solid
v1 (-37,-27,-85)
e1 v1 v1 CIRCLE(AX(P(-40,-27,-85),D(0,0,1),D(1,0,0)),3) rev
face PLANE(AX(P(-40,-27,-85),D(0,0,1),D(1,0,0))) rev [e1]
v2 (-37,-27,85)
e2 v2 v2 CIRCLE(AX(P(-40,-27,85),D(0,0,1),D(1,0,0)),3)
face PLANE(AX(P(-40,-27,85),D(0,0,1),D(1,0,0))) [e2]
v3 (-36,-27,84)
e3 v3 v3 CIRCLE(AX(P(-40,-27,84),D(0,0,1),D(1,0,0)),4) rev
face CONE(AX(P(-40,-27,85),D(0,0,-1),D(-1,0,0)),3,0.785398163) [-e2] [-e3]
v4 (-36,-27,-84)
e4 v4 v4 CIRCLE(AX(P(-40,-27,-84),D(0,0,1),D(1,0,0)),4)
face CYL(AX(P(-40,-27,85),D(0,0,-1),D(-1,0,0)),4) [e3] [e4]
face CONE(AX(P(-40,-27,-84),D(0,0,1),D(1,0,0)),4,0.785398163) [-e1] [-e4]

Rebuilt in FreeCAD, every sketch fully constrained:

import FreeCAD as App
import Part
import Sketcher
from FreeCAD import Vector


def edges_at(feature, points):
    """Names of the edges that pass closest to the given points."""
    edges = feature.Shape.Edges
    near = lambda p: min(range(len(edges)), key=lambda i: edges[i].distToShape(Part.Vertex(*p))[0])
    return sorted({f"Edge{near(p) + 1}" for p in points})

doc = App.newDocument("Part")
body = doc.addObject("PartDesign::Body", "Body")

# Sketch on XY plane
sketch1 = body.newObject("Sketcher::SketchObject", "Sketch")
sketch1.AttachmentSupport = (doc.getObject("XY_Plane"), [""])
sketch1.MapMode = "FlatFace"
sketch1.addGeometry(Part.Circle(Vector(-40, -27, 0), Vector(0, 0, 1), 4), False)
sketch1.addConstraint(Sketcher.Constraint("Diameter", 0, 8.0))
sketch1.addConstraint(Sketcher.Constraint("DistanceX", 0, 3, -1, 1, 40.0))
sketch1.addConstraint(Sketcher.Constraint("DistanceY", 0, 3, -1, 1, 27.0))
pad1 = body.newObject("PartDesign::Pad", "Pad")
pad1.Profile = sketch1
pad1.Length = 170
pad1.Midplane = True
doc.recompute()

chamfer = body.newObject("PartDesign::Chamfer", "Chamfer")
chamfer.Base = (pad1, edges_at(pad1, [(-44, -27, -85), (-44, -27, 85)]))
chamfer.Size = 1

doc.recompute()
